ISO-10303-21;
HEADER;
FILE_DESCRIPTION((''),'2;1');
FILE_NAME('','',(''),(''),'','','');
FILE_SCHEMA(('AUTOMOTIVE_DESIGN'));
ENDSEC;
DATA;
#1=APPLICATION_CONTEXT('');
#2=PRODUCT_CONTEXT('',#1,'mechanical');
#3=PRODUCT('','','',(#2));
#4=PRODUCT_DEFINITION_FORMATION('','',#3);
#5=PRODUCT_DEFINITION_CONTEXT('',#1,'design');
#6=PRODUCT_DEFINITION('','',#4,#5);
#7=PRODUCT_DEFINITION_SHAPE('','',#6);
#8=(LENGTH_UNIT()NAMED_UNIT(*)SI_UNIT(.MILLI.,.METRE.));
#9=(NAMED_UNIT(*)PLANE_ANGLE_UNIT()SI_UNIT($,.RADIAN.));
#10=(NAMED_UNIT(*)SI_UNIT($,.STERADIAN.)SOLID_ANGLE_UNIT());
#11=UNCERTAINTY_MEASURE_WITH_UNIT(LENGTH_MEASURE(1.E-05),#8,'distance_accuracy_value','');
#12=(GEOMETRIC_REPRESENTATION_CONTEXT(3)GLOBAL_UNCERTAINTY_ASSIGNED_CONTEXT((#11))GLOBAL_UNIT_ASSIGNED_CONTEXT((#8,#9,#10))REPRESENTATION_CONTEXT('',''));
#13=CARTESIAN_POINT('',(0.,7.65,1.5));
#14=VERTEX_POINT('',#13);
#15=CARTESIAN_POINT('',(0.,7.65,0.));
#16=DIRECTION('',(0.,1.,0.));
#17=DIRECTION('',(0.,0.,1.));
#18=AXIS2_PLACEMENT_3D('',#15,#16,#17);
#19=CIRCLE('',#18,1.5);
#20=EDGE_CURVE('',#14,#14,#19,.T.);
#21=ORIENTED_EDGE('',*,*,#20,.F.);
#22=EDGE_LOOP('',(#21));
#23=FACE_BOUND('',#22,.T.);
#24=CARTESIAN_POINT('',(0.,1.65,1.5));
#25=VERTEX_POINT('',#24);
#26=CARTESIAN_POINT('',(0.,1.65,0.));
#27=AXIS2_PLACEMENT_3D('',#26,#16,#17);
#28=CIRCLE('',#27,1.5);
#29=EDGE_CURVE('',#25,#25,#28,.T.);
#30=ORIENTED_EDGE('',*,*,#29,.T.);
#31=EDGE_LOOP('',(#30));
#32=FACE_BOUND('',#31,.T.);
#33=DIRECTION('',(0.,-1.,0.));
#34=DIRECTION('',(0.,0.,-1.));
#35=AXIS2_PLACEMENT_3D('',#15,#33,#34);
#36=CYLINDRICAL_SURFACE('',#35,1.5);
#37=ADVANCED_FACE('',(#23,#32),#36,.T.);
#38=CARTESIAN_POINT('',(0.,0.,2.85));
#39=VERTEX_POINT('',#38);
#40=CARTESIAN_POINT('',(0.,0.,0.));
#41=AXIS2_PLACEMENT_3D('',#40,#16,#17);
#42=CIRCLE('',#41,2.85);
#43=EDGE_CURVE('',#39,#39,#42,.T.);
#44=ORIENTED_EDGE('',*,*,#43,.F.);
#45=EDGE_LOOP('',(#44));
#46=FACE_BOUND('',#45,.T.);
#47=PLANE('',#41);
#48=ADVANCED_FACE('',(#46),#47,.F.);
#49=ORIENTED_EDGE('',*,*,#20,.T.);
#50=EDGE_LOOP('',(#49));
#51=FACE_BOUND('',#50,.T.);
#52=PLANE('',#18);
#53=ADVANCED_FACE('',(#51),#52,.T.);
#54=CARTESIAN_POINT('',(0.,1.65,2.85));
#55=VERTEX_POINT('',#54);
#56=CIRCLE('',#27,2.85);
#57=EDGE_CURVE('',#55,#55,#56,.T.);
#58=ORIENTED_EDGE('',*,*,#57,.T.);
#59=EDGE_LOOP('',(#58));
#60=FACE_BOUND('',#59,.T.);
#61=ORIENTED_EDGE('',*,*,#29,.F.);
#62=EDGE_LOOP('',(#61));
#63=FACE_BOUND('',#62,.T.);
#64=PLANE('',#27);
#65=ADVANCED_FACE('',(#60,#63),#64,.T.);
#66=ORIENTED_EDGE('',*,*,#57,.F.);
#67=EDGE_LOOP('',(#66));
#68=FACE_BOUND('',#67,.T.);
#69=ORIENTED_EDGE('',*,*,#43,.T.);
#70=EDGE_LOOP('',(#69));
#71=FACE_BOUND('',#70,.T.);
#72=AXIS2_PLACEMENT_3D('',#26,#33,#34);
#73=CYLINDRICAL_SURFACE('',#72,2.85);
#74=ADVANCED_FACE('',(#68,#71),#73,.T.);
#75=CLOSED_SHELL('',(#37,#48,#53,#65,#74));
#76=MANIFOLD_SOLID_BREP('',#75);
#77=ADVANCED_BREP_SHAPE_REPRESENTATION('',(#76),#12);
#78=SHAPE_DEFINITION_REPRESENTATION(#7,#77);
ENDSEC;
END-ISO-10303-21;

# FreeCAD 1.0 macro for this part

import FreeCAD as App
import Part
import Sketcher

doc = App.newDocument("Part")
body = doc.addObject("PartDesign::Body", "Body")

# Sketch on XZ plane
sketch1 = body.newObject("Sketcher::SketchObject", "Sketch")
sketch1.AttachmentSupport = (doc.getObject("XZ_Plane"), [""])
sketch1.MapMode = "FlatFace"
sketch1.addGeometry(Part.Circle(App.Vector(0, 0, 0), App.Vector(0, 0, 1), 2.85), False)
sketch1.addConstraint(Sketcher.Constraint("Coincident", 0, 3, -1, 1))
sketch1.addConstraint(Sketcher.Constraint("Diameter", 0, 5.7))
pad1 = body.newObject("PartDesign::Pad", "Pad")
pad1.Profile = sketch1
pad1.Length = 1.65
pad1.Reversed = True

# Sketch on XZ plane
sketch2 = body.newObject("Sketcher::SketchObject", "Sketch001")
sketch2.AttachmentSupport = (doc.getObject("XZ_Plane"), [""])
sketch2.MapMode = "FlatFace"
sketch2.AttachmentOffset = App.Placement(App.Vector(0, 0, -1.65), App.Rotation())
sketch2.addGeometry(Part.Circle(App.Vector(0, 0, 0), App.Vector(0, 0, 1), 1.5), False)
sketch2.addConstraint(Sketcher.Constraint("Coincident", 0, 3, -1, 1))
sketch2.addConstraint(Sketcher.Constraint("Diameter", 0, 3.0))
pad2 = body.newObject("PartDesign::Pad", "Pad001")
pad2.Profile = sketch2
pad2.Length = 6
pad2.Reversed = True

doc.recompute()
